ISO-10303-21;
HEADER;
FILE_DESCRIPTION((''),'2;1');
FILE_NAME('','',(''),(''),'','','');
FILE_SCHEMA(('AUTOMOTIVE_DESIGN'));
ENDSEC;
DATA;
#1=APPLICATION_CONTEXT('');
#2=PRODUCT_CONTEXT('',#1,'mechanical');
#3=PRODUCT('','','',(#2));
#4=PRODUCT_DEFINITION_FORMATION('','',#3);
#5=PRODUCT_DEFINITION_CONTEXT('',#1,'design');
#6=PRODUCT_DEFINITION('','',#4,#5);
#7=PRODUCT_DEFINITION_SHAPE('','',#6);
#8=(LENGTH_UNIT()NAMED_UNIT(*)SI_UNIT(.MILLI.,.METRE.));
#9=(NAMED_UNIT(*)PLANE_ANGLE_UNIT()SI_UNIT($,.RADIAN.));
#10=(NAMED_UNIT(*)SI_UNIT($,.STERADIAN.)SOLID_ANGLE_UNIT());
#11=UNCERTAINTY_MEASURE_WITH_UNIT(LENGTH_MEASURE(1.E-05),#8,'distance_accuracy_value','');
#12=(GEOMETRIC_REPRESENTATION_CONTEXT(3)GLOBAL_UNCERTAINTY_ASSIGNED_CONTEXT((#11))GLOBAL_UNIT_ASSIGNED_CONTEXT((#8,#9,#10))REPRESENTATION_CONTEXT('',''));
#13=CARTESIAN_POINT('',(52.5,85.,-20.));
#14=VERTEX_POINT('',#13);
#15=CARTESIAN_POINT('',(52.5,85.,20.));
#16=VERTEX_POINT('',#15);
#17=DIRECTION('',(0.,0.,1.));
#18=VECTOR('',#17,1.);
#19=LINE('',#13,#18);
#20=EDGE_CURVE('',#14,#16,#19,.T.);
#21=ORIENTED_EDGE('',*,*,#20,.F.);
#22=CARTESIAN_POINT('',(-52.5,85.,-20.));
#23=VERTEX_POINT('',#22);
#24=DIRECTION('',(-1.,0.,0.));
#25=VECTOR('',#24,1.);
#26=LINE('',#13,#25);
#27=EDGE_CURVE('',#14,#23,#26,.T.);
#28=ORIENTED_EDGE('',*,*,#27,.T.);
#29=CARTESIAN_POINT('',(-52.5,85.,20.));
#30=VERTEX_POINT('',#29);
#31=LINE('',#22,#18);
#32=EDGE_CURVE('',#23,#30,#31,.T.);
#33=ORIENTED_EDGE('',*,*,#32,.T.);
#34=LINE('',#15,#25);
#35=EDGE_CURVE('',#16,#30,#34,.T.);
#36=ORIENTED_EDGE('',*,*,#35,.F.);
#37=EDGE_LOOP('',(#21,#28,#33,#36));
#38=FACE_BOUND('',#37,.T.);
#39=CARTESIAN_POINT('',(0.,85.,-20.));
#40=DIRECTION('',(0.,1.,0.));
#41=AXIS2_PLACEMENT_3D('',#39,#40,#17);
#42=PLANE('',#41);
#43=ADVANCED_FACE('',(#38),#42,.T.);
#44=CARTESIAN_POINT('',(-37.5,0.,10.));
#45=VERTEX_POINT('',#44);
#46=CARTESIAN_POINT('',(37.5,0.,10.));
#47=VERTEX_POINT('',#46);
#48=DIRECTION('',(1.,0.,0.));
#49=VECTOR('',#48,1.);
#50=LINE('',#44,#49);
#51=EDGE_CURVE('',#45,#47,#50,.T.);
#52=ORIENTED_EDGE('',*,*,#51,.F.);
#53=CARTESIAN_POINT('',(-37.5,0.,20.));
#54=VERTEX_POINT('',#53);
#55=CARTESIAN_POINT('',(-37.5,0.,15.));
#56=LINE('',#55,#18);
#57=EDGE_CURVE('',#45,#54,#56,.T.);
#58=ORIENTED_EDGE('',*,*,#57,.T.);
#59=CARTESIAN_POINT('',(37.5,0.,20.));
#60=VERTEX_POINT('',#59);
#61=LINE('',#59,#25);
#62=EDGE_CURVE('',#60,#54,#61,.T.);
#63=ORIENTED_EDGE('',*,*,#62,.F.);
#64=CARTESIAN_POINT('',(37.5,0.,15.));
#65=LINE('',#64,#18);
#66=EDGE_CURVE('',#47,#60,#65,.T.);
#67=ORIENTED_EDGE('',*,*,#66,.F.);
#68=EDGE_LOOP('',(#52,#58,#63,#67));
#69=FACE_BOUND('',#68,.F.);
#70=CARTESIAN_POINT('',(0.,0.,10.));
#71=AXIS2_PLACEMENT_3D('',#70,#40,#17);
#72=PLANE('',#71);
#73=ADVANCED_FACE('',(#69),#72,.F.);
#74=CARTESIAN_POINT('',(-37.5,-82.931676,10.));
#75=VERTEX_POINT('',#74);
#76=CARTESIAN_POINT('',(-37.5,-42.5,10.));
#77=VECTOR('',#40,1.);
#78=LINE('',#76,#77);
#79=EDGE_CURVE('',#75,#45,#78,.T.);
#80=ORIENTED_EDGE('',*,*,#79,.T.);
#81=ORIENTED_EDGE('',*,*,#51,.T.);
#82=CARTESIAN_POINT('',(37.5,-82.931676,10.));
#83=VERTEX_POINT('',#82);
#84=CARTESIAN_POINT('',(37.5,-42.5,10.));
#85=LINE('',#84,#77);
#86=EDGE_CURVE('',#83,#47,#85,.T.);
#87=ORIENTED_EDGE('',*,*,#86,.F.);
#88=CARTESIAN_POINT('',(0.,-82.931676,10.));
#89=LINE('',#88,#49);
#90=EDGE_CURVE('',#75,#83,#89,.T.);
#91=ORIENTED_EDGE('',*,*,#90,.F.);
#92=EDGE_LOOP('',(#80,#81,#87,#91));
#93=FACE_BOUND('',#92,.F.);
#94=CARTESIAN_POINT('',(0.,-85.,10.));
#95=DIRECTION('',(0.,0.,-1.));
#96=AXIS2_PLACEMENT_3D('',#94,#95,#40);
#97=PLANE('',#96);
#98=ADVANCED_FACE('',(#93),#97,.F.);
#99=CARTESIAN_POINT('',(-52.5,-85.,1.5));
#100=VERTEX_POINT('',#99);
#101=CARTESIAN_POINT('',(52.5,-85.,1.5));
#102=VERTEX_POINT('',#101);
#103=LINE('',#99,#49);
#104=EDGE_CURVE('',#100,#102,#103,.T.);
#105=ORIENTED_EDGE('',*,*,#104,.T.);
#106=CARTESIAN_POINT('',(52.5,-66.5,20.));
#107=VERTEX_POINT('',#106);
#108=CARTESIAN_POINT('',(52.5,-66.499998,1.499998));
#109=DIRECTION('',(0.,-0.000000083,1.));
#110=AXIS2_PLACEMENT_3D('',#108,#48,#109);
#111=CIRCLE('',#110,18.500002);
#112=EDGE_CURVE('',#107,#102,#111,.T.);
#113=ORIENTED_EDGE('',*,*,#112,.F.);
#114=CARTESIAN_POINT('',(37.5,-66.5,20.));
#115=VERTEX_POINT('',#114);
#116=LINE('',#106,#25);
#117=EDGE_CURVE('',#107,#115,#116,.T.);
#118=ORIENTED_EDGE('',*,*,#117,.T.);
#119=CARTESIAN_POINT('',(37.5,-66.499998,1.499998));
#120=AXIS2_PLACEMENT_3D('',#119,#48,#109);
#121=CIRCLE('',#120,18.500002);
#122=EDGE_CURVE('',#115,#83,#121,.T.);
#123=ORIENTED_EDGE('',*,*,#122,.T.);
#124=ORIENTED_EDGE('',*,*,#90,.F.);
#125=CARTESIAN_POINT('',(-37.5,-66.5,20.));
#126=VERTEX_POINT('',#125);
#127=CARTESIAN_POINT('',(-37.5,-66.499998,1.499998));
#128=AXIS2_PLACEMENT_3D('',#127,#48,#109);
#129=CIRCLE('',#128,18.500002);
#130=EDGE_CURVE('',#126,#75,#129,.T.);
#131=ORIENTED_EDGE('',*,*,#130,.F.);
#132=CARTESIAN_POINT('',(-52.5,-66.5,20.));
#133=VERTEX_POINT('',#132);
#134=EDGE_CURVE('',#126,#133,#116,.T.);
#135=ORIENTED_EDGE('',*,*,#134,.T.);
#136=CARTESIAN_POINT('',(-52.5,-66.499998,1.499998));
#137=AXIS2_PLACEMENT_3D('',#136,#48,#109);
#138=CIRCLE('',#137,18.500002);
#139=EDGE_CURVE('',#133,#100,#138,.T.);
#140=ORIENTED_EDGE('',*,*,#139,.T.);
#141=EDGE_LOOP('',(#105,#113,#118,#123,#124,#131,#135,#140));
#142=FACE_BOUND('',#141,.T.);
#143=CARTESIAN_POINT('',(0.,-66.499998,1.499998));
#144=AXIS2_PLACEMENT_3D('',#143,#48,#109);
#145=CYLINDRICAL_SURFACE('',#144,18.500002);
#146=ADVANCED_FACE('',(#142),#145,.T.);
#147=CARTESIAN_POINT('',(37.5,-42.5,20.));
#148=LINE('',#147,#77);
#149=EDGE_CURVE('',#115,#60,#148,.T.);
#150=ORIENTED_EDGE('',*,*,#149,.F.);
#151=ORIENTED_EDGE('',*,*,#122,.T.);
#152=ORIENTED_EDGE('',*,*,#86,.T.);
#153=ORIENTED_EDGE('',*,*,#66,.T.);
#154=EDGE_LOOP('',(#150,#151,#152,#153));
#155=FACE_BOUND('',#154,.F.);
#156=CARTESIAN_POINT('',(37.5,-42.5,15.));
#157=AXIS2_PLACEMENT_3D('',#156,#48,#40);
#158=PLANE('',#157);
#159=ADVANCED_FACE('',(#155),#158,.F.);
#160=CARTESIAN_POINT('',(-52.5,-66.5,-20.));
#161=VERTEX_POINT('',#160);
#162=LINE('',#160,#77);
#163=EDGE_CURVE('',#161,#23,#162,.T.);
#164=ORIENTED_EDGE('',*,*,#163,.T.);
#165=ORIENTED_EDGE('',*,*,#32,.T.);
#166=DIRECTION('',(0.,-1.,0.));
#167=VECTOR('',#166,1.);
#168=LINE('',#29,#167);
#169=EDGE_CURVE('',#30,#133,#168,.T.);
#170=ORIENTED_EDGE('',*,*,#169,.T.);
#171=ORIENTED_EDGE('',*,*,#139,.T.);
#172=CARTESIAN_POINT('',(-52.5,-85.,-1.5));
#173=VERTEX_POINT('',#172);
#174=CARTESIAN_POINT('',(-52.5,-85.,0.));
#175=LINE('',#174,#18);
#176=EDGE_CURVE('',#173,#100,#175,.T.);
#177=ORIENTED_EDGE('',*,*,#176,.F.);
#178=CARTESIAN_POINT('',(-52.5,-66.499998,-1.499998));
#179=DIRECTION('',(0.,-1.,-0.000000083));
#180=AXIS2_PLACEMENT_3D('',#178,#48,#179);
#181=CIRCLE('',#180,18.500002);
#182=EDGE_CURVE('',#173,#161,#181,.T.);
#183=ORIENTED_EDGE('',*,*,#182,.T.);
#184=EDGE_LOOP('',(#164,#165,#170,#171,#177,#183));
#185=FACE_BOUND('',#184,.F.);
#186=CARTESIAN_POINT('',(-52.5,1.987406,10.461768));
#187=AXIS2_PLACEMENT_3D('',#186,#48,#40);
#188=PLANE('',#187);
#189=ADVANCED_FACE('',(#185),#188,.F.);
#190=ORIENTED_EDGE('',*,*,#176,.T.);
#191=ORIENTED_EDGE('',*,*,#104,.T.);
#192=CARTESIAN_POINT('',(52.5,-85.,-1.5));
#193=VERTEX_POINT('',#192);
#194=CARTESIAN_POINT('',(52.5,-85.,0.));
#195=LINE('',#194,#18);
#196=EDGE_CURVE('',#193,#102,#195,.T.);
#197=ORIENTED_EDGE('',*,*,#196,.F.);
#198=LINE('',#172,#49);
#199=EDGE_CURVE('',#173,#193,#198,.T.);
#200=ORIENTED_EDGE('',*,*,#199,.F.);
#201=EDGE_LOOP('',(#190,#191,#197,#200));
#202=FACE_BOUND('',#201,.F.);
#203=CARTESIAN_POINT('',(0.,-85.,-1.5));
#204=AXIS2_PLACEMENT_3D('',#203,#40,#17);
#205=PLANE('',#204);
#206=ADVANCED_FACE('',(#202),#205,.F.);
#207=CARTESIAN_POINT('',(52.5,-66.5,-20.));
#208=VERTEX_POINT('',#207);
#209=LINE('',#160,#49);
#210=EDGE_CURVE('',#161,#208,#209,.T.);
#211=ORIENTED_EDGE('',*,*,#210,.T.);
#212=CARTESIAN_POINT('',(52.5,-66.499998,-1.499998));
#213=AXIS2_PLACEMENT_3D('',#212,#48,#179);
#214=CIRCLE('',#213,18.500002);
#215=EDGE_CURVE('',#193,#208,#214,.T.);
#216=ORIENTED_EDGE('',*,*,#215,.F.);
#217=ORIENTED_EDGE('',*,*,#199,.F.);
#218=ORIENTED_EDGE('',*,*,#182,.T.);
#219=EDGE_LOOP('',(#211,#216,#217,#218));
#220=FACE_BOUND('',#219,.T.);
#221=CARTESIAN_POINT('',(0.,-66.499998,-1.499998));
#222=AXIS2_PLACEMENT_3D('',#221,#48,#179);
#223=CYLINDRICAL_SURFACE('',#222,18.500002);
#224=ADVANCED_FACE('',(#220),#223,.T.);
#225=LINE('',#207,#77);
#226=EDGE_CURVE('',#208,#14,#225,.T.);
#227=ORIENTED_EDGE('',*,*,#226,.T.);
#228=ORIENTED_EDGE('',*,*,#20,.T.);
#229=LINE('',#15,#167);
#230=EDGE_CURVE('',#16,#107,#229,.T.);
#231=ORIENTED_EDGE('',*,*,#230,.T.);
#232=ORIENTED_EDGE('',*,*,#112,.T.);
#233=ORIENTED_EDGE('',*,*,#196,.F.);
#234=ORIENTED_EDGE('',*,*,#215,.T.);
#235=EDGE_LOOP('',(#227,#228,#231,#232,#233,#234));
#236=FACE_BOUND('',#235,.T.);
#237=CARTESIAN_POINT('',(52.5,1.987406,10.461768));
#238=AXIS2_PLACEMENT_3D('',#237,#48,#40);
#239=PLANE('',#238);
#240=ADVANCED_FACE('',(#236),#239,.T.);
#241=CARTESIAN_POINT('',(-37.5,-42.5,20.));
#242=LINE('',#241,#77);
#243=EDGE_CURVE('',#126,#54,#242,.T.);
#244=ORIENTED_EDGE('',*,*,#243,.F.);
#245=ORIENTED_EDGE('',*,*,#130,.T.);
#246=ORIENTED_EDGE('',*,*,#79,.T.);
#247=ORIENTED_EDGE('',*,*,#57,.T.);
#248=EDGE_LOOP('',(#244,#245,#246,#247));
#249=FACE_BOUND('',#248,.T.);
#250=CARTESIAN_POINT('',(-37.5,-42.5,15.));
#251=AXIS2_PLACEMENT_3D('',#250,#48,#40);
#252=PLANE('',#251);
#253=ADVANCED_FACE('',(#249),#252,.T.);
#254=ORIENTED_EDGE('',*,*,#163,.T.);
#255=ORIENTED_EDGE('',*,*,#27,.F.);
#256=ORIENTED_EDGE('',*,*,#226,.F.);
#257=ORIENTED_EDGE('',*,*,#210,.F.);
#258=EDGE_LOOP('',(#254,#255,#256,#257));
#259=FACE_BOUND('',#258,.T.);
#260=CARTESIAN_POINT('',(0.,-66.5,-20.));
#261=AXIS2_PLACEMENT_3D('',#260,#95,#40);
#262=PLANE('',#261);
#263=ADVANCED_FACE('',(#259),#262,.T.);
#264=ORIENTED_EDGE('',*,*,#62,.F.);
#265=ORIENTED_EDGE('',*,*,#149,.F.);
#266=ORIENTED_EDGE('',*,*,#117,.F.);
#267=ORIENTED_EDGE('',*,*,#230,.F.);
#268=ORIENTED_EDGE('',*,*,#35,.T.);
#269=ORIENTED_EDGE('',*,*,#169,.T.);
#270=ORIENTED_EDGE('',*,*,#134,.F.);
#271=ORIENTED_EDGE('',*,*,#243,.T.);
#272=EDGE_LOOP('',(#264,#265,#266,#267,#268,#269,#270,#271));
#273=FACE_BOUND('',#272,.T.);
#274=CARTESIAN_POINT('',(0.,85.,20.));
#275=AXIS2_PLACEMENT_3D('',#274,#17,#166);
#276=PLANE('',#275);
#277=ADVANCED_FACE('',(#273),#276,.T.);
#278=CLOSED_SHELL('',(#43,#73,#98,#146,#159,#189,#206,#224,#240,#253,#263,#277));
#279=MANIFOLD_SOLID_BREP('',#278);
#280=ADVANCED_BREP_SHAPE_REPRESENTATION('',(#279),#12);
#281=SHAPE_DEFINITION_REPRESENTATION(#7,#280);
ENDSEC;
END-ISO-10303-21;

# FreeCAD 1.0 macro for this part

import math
import FreeCAD as App
import Part
import Sketcher
from FreeCAD import Vector
Q = App.Units.Quantity

doc = App.newDocument("Part")
body = doc.addObject("PartDesign::Body", "Body")

# Sketch on YZ plane
sketch1 = doc.addObject("Sketcher::SketchObject", "Sketch")
body.addObject(sketch1)
sketch1.AttachmentSupport = (doc.YZ_Plane, [""])
sketch1.MapMode = "FlatFace"
sketch1.addGeometry(Part.ArcOfCircle(Part.Circle(Vector(-66.5, 1.5, 0), Vector(0, 0, 1), 18.5), math.radians(90), math.radians(180)), False)
sketch1.addGeometry(Part.LineSegment(Vector(-85, 1.5, 0), Vector(-85, -1.5, 0)), False)
sketch1.addGeometry(Part.ArcOfCircle(Part.Circle(Vector(-66.5, -1.5, 0), Vector(0, 0, 1), 18.5), math.radians(-180), math.radians(-90)), False)
sketch1.addGeometry(Part.LineSegment(Vector(-66.5, -20, 0), Vector(85, -20, 0)), False)
sketch1.addGeometry(Part.LineSegment(Vector(85, -20, 0), Vector(85, 20, 0)), False)
sketch1.addGeometry(Part.LineSegment(Vector(85, 20, 0), Vector(-66.5, 20, 0)), False)
sketch1.addConstraint(Sketcher.Constraint("Tangent", 0, 2, 1, 1))
sketch1.addConstraint(Sketcher.Constraint("Tangent", 1, 2, 2, 1))
sketch1.addConstraint(Sketcher.Constraint("Tangent", 2, 2, 3, 1))
sketch1.addConstraint(Sketcher.Constraint("Coincident", 3, 2, 4, 1))
sketch1.addConstraint(Sketcher.Constraint("Coincident", 4, 2, 5, 1))
sketch1.addConstraint(Sketcher.Constraint("Tangent", 5, 2, 0, 1))
sketch1.addConstraint(Sketcher.Constraint("Vertical", 1))
sketch1.addConstraint(Sketcher.Constraint("Horizontal", 3))
sketch1.addConstraint(Sketcher.Constraint("Vertical", 4))
sketch1.addConstraint(Sketcher.Constraint("Horizontal", 5))
sketch1.addConstraint(Sketcher.Constraint("Equal", 0, 2))
sketch1.addConstraint(Sketcher.Constraint("Radius", 0, Q("18.500002 mm")))
sketch1.addConstraint(Sketcher.Constraint("DistanceY", 1, 2, 1, 1, Q("3 mm")))
sketch1.addConstraint(Sketcher.Constraint("DistanceX", 3, 1, 3, 2, Q("151.5 mm")))
sketch1.addConstraint(Sketcher.Constraint("DistanceX", 0, 2, -1, 1, Q("85 mm")))
sketch1.addConstraint(Sketcher.Constraint("DistanceY", 2, 2, -1, 1, Q("20 mm")))
pad1 = doc.addObject("PartDesign::Pad", "Pad")
body.addObject(pad1)
pad1.Profile = sketch1
pad1.Length = 105
pad1.Midplane = True

# Sketch on YZ plane
sketch2 = doc.addObject("Sketcher::SketchObject", "Sketch001")
body.addObject(sketch2)
sketch2.AttachmentSupport = (doc.YZ_Plane, [""])
sketch2.MapMode = "FlatFace"
sketch2.addGeometry(Part.LineSegment(Vector(-85, 20, 0), Vector(-85, 10, 0)), False)
sketch2.addGeometry(Part.LineSegment(Vector(-85, 10, 0), Vector(0, 10, 0)), False)
sketch2.addGeometry(Part.LineSegment(Vector(0, 10, 0), Vector(0, 20, 0)), False)
sketch2.addGeometry(Part.LineSegment(Vector(0, 20, 0), Vector(-85, 20, 0)), False)
sketch2.addConstraint(Sketcher.Constraint("Coincident", 0, 2, 1, 1))
sketch2.addConstraint(Sketcher.Constraint("Coincident", 1, 2, 2, 1))
sketch2.addConstraint(Sketcher.Constraint("Coincident", 2, 2, 3, 1))
sketch2.addConstraint(Sketcher.Constraint("Coincident", 3, 2, 0, 1))
sketch2.addConstraint(Sketcher.Constraint("Vertical", 0))
sketch2.addConstraint(Sketcher.Constraint("Horizontal", 1))
sketch2.addConstraint(Sketcher.Constraint("Vertical", 2))
sketch2.addConstraint(Sketcher.Constraint("Horizontal", 3))
sketch2.addConstraint(Sketcher.Constraint("PointOnObject", 1, 2, -2))
sketch2.addConstraint(Sketcher.Constraint("DistanceX", 1, 1, 1, 2, Q("85 mm")))
sketch2.addConstraint(Sketcher.Constraint("DistanceY", 0, 2, 0, 1, Q("10 mm")))
sketch2.addConstraint(Sketcher.Constraint("DistanceY", -1, 1, 0, 2, Q("10 mm")))
pocket1 = doc.addObject("PartDesign::Pocket", "Pocket")
body.addObject(pocket1)
pocket1.Profile = sketch2
pocket1.Length = 75
pocket1.Midplane = True

doc.recompute()
